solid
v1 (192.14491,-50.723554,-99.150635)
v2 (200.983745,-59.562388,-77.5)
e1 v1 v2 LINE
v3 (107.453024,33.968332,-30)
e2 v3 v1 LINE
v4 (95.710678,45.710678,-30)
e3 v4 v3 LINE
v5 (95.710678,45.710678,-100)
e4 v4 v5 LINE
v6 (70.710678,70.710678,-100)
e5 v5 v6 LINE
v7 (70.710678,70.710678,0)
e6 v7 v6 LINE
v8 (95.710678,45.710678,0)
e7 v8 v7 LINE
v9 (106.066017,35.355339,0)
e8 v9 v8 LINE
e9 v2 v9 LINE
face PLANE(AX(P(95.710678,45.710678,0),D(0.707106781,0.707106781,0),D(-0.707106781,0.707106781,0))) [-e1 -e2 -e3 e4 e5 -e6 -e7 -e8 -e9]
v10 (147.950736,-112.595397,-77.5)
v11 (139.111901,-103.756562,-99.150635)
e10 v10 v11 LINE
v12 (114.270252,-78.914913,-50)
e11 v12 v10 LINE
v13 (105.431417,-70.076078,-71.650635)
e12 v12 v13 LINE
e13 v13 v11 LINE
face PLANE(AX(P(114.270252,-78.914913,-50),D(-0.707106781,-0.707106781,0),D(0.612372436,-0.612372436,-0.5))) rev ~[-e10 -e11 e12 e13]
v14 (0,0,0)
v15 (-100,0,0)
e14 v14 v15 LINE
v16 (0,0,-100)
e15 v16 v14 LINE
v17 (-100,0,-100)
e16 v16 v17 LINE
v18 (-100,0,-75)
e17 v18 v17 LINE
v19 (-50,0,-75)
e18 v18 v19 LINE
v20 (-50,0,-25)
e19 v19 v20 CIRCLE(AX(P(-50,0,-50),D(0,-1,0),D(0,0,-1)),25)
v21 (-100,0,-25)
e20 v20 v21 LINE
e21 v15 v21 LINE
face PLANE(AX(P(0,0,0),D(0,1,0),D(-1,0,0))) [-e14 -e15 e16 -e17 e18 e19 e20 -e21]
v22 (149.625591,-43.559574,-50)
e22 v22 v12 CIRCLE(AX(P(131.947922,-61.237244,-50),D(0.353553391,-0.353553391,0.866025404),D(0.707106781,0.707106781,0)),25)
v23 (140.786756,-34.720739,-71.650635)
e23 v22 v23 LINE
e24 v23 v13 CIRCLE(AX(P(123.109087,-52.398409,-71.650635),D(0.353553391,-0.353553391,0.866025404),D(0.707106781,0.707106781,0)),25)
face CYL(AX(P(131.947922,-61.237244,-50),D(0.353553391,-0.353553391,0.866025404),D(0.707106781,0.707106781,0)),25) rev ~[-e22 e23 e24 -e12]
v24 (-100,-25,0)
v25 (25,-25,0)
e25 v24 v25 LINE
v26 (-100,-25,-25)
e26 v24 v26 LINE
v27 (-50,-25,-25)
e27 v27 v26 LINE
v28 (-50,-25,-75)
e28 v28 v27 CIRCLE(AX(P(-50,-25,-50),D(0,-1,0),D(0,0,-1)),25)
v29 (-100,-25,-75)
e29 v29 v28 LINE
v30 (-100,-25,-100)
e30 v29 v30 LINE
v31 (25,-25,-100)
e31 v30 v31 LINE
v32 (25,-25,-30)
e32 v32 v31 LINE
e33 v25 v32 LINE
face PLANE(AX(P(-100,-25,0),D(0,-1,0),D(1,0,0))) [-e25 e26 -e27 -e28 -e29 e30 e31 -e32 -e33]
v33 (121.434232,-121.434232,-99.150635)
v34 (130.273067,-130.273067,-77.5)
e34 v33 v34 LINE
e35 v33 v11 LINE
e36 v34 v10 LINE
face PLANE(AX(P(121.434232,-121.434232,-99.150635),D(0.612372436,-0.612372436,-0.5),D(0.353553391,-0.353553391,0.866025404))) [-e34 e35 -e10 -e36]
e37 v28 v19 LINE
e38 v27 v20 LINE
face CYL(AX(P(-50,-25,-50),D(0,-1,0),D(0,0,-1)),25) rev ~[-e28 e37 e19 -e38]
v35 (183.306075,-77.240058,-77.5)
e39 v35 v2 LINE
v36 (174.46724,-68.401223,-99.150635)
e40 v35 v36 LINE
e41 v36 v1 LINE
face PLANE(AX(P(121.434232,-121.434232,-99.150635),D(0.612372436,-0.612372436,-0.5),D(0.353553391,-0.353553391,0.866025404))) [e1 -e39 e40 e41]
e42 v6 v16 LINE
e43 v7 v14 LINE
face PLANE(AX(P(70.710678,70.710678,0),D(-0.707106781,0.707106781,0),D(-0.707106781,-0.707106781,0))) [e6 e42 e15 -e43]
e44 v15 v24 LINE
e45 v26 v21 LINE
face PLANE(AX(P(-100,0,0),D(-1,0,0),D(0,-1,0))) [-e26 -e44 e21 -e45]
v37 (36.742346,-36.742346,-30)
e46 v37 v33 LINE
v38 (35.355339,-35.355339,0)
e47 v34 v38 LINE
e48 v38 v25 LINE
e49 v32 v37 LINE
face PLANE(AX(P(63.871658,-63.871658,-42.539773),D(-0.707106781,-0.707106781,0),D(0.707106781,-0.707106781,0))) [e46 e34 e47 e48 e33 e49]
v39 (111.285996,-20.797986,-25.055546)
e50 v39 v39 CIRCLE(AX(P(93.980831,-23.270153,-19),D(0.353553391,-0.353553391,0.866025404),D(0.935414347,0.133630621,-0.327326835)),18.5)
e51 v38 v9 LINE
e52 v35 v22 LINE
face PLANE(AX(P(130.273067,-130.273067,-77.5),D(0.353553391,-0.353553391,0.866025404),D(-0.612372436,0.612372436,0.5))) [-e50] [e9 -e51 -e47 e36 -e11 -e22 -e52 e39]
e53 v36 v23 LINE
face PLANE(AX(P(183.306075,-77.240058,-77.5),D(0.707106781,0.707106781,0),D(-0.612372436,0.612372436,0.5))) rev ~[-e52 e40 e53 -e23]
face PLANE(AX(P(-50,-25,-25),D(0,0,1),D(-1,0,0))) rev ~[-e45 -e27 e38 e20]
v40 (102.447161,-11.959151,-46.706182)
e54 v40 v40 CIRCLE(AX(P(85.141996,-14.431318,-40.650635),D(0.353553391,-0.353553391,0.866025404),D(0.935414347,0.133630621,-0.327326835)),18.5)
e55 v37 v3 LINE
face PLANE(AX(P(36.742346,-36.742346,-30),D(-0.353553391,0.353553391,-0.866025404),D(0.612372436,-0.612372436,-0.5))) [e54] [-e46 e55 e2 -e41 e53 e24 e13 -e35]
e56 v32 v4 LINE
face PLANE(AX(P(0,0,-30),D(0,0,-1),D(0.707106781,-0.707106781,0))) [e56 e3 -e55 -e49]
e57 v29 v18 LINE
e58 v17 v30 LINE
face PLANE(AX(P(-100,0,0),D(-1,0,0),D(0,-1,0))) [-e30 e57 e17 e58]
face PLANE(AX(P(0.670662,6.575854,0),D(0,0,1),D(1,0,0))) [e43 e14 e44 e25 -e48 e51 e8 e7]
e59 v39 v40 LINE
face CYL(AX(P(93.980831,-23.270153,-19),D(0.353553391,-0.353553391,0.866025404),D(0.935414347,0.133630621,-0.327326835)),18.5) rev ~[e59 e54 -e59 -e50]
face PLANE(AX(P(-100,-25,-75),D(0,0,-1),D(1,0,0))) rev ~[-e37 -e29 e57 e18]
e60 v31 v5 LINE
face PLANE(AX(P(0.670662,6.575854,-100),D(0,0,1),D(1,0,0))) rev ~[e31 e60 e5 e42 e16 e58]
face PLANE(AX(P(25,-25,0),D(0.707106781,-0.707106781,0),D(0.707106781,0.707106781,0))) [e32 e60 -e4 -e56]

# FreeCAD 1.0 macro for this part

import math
import FreeCAD as App
import Part
import Sketcher
Q = App.Units.Quantity


def add_polygon(sketch, points):
    """Adds a closed chain of lines whose ends are joined by coincident constraints."""
    first, n = sketch.GeometryCount, len(points)
    for a, b in zip(points, points[1:] + points[:1]):
        sketch.addGeometry(Part.LineSegment(App.Vector(*a, 0), App.Vector(*b, 0)), False)
    for i in range(n):
        sketch.addConstraint(Sketcher.Constraint("Coincident", first + i, 2, first + (i + 1) % n, 1))

doc = App.newDocument("Part")
body = doc.addObject("PartDesign::Body", "Body")

sketch1 = body.newObject("Sketcher::SketchObject", "Sketch")
sketch1.AttachmentSupport = (doc.getObject("XY_Plane"), [""])
sketch1.MapMode = "FlatFace"
add_polygon(sketch1, [(-100, -25), (25, -25), (96, 46), (71, 71), (0, 0), (-100, 0)])
sketch1.addConstraint([
    Sketcher.Constraint("Horizontal", 0),
    Sketcher.Constraint("Horizontal", 4),
    Sketcher.Constraint("Vertical", 5),
    Sketcher.Constraint("Coincident", 3, 2, -1, 1),
    Sketcher.Constraint("Perpendicular", 1, 2),
    Sketcher.Constraint("Perpendicular", 2, 3),
    Sketcher.Constraint("Equal", 1, 3),
    Sketcher.Constraint("DistanceX", 0, 1, 0, 2, 125.0),
    Sketcher.Constraint("DistanceX", 4, 2, 4, 1, 100.0),
    Sketcher.Constraint("DistanceY", 5, 2, 5, 1, 25.0),
    Sketcher.Constraint("Distance", 1, 100.0),
])
pad1 = body.newObject("PartDesign::Pad", "Pad")
pad1.Profile = sketch1
pad1.Length = 100
pad1.Reversed = True

sketch2 = body.newObject("Sketcher::SketchObject", "Sketch001")
sketch2.Placement = App.Placement(App.Vector(0, 0, 0), App.Rotation(App.Vector(0.707106781, -0.707106781, 0), App.Vector(0, 0, 0.999999999), App.Vector(-0.707106781, -0.707106781, 0), "ZXY"))
add_polygon(sketch2, [(0, 0), (0, -30), (52, -30), (172, -99), (184, -77), (50, 0)])
sketch2.addConstraint([
    Sketcher.Constraint("Vertical", 0),
    Sketcher.Constraint("Horizontal", 1),
    Sketcher.Constraint("Horizontal", 5),
    Sketcher.Constraint("Coincident", 5, 2, -1, 1),
    Sketcher.Constraint("Perpendicular", 2, 3),
    Sketcher.Constraint("Perpendicular", 3, 4),
    Sketcher.Constraint("DistanceX", 5, 2, 5, 1, 50.0),
    Sketcher.Constraint("DistanceY", 0, 2, 0, 1, 30.0),
    Sketcher.Constraint("Angle", 2, Q("-30 deg")),
    Sketcher.Constraint("Distance", 3, 25.0),
    Sketcher.Constraint("Distance", 4, 155.0),
])
pad2 = body.newObject("PartDesign::Pad", "Pad001")
pad2.Profile = sketch2
pad2.Length = 100
pad2.Reversed = True

sketch3 = body.newObject("Sketcher::SketchObject", "Sketch002")
sketch3.AttachmentSupport = (doc.getObject("XZ_Plane"), [""])
sketch3.MapMode = "FlatFace"
sketch3.AttachmentOffset = App.Placement(App.Vector(0, 0, 25), App.Rotation())
sketch3.addGeometry([
    Part.LineSegment(App.Vector(-50, -25, 0), App.Vector(-100, -25, 0)),
    Part.LineSegment(App.Vector(-100, -25, 0), App.Vector(-100, -75, 0)),
    Part.LineSegment(App.Vector(-100, -75, 0), App.Vector(-50, -75, 0)),
    Part.ArcOfCircle(Part.Circle(App.Vector(-50, -50, 0), App.Vector(0, 0, 1), 25), math.radians(-90), math.radians(90)),
], False)
sketch3.addConstraint([
    Sketcher.Constraint("Coincident", 0, 2, 1, 1),
    Sketcher.Constraint("Coincident", 1, 2, 2, 1),
    Sketcher.Constraint("Tangent", 2, 2, 3, 1),
    Sketcher.Constraint("Tangent", 3, 2, 0, 1),
    Sketcher.Constraint("Horizontal", 0),
    Sketcher.Constraint("Vertical", 1),
    Sketcher.Constraint("Horizontal", 2),
    Sketcher.Constraint("Equal", 2, 1),
    Sketcher.Constraint("Radius", 3, 25.0),
    Sketcher.Constraint("DistanceX", 3, 3, -1, 1, 50.0),
    Sketcher.Constraint("DistanceY", 3, 3, -1, 1, 50.0),
])
pocket1 = body.newObject("PartDesign::Pocket", "Pocket")
pocket1.Profile = sketch3
pocket1.Type = "ThroughAll"

sketch4 = body.newObject("Sketcher::SketchObject", "Sketch003")
sketch4.Placement = App.Placement(App.Vector(8.838835, -8.838835, 21.650635), App.Rotation(App.Vector(0.935414347, 0.133630621, -0.327326835), App.Vector(0, 0.9258201, 0.377964474), App.Vector(0.353553391, -0.353553391, 0.866025404), "ZXY"))
sketch4.addGeometry([
    Part.Circle(App.Vector(91, -29, 0), App.Vector(0, 0, 1), 18),
    Part.LineSegment(App.Vector(113, -92, 0), App.Vector(149, -134, 0)),
    Part.LineSegment(App.Vector(149, -134, 0), App.Vector(187, -101, 0)),
    Part.LineSegment(App.Vector(187, -101, 0), App.Vector(151, -59, 0)),
    Part.ArcOfCircle(Part.Circle(App.Vector(132, -76, 0), App.Vector(0, 0, 1), 25), math.radians(41), math.radians(221)),
], False)
sketch4.addConstraint([
    Sketcher.Constraint("Coincident", 1, 2, 2, 1),
    Sketcher.Constraint("Coincident", 2, 2, 3, 1),
    Sketcher.Constraint("Tangent", 3, 2, 4, 1),
    Sketcher.Constraint("Tangent", 4, 2, 1, 1),
    Sketcher.Constraint("Perpendicular", 1, 2),
    Sketcher.Constraint("Perpendicular", 2, 3),
    Sketcher.Constraint("Diameter", 0, 37.0),
    Sketcher.Constraint("Radius", 4, 25.0),
    Sketcher.Constraint("Distance", 1, 55.0),
    Sketcher.Constraint("DistanceY", 0, 3, -1, 1, 28.7253),
    Sketcher.Constraint("DistanceX", 4, 2, 2, 2, 73.802399),
    Sketcher.Constraint("DistanceX", -1, 1, 4, 3, 131.60915),
    Sketcher.Constraint("DistanceY", 1, 2, -1, 1, 133.535329),
    Sketcher.Constraint("DistanceX", 0, 3, 3, 2, 59.486751),
])
pocket2 = body.newObject("PartDesign::Pocket", "Pocket001")
pocket2.Profile = sketch4
pocket2.Length = 25

doc.recompute()
